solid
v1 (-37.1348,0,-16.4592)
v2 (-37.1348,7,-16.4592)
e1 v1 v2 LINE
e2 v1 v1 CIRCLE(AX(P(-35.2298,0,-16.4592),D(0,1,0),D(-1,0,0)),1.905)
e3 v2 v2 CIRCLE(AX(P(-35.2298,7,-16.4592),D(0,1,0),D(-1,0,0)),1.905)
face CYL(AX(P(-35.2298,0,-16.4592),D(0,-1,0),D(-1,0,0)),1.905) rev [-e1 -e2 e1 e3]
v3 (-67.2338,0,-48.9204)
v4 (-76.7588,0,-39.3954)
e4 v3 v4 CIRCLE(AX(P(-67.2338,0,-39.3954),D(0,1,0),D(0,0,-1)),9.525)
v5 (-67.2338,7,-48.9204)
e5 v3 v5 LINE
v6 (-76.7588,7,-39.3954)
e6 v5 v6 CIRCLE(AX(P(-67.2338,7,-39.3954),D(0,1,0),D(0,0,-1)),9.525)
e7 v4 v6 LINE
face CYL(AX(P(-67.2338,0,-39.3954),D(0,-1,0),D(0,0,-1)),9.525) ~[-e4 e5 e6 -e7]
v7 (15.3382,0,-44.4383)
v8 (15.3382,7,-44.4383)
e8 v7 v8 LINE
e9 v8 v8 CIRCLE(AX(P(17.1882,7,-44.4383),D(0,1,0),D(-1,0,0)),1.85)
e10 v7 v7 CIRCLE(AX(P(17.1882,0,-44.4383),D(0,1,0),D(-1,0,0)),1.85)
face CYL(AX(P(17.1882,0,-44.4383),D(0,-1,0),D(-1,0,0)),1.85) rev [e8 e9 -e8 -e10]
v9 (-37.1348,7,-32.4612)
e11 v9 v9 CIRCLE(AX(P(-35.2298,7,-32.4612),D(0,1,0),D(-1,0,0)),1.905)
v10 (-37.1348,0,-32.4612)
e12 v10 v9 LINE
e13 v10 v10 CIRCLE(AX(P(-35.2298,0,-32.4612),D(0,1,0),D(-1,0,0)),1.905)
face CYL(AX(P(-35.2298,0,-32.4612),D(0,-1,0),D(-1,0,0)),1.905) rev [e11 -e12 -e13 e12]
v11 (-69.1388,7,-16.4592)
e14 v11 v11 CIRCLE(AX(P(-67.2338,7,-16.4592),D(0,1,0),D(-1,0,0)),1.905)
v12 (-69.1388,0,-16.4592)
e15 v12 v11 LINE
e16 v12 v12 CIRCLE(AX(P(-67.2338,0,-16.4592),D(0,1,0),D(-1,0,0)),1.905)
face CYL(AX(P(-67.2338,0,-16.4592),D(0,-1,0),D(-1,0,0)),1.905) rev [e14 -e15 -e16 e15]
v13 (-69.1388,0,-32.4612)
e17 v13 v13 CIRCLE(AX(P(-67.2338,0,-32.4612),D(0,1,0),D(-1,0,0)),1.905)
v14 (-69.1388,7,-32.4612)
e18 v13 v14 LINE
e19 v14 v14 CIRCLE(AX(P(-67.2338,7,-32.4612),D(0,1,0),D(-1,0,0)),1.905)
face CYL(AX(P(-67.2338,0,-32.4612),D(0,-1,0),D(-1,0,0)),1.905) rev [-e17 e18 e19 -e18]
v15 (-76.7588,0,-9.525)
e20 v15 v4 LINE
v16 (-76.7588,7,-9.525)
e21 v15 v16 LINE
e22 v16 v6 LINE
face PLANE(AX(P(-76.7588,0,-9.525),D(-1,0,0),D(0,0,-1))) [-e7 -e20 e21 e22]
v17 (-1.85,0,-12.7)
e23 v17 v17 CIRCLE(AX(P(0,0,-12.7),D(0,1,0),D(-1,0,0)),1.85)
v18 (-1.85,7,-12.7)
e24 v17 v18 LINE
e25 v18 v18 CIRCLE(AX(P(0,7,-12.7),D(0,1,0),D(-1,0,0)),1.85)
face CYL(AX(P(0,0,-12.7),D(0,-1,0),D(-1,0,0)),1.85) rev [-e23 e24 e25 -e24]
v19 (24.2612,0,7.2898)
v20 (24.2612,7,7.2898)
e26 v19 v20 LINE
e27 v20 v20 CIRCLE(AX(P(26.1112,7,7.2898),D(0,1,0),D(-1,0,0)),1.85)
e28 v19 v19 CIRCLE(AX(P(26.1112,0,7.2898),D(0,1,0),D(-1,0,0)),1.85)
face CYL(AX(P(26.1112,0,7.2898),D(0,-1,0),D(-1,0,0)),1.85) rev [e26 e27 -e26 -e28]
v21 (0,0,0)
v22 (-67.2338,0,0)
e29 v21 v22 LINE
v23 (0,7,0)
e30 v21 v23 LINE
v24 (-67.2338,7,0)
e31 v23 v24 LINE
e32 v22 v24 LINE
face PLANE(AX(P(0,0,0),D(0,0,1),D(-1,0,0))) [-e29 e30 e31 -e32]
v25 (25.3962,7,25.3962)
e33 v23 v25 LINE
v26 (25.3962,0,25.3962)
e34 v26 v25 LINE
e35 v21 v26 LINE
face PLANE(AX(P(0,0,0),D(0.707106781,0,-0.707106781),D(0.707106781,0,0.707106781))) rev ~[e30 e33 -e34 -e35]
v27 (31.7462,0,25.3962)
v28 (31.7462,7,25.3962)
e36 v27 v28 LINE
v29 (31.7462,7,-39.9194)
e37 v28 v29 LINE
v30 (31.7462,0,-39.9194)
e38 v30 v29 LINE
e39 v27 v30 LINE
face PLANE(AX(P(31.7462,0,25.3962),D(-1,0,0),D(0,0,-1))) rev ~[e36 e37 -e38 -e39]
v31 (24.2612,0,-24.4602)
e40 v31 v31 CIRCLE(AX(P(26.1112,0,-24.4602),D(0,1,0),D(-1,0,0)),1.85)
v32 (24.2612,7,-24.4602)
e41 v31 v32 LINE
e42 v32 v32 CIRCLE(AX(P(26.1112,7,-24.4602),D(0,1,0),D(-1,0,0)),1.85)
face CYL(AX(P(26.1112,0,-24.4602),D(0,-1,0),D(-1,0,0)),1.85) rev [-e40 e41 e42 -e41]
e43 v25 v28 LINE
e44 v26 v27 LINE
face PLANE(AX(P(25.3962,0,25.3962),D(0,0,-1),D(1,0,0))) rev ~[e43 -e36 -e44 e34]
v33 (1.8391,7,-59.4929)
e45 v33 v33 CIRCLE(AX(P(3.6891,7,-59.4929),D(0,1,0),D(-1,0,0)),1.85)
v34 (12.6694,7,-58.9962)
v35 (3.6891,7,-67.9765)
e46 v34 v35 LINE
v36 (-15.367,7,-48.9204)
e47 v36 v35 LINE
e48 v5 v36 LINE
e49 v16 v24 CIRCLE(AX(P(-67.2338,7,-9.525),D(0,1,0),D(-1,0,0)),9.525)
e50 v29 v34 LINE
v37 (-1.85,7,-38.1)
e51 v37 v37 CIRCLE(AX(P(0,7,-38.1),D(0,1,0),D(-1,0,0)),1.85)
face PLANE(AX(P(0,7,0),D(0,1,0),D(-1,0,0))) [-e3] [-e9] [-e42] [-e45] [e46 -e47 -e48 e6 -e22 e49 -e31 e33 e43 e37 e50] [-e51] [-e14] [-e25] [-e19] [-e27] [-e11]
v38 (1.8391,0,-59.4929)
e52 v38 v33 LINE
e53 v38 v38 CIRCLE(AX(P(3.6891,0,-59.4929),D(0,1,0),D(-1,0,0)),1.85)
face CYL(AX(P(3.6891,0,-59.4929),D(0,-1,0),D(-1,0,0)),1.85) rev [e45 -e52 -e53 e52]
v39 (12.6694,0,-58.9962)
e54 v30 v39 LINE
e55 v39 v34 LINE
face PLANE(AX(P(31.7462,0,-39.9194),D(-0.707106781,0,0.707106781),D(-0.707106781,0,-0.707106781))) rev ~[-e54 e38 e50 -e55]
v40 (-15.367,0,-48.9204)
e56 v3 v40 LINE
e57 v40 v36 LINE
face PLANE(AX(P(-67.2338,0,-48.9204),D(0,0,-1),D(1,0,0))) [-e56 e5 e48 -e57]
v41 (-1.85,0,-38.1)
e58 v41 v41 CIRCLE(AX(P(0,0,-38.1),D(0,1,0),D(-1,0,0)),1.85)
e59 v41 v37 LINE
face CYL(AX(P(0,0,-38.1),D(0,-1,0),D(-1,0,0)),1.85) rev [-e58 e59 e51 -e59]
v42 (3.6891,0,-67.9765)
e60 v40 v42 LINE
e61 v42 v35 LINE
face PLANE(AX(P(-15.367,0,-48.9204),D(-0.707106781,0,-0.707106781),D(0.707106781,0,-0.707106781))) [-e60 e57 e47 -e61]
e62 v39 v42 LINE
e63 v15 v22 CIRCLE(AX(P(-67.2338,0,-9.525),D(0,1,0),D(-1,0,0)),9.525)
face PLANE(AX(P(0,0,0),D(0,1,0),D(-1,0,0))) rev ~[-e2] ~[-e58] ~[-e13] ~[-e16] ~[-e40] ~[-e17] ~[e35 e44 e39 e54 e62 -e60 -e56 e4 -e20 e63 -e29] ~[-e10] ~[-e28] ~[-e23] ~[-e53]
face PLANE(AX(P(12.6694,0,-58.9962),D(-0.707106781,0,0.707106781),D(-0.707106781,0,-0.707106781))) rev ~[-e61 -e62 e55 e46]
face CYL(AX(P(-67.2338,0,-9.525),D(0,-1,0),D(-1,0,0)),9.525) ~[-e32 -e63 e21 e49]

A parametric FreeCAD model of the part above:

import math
import FreeCAD as App
import Part
import Sketcher

V = App.Vector
Q = App.Units.Quantity

doc = App.newDocument("Part")
body = doc.addObject("PartDesign::Body", "Body")

# Sketch on XZ plane
sketch1 = doc.addObject("Sketcher::SketchObject", "Sketch")
body.addObject(sketch1)
sketch1.AttachmentSupport = (doc.XZ_Plane, [""])
sketch1.MapMode = "FlatFace"
sketch1.addGeometry([
    Part.LineSegment(V(-67.2338, 0, 0), V(0, 0, 0)),  # 0
    Part.LineSegment(V(0, 0, 0), V(25.3962, 25.3962, 0)),  # 1
    Part.LineSegment(V(25.3962, 25.3962, 0), V(31.7462, 25.3962, 0)),  # 2
    Part.LineSegment(V(31.7462, 25.3962, 0), V(31.7462, -39.9194, 0)),  # 3
    Part.LineSegment(V(31.7462, -39.9194, 0), V(3.6891, -67.9765, 0)),  # 4
    Part.LineSegment(V(3.6891, -67.9765, 0), V(-15.367, -48.9204, 0)),  # 5
    Part.LineSegment(V(-15.367, -48.9204, 0), V(-67.2338, -48.9204, 0)),  # 6
    Part.ArcOfCircle(Part.Circle(V(-67.2338, -39.3954, 0), V(0, 0, 1), 9.525), math.radians(180), math.radians(270)),  # 7
    Part.LineSegment(V(-76.7588, -39.3954, 0), V(-76.7588, -9.525, 0)),  # 8
    Part.ArcOfCircle(Part.Circle(V(-67.2338, -9.525, 0), V(0, 0, 1), 9.525), math.radians(90), math.radians(180)),  # 9
    Part.Circle(V(3.6891, -59.4929, 0), V(0, 0, 1), 1.85),  # 10
    Part.Circle(V(17.1882, -44.4383, 0), V(0, 0, 1), 1.85),  # 11
    Part.Circle(V(26.1112, -24.4602, 0), V(0, 0, 1), 1.85),  # 12
    Part.Circle(V(0, -38.1, 0), V(0, 0, 1), 1.85),  # 13
    Part.Circle(V(-35.2298, -32.4612, 0), V(0, 0, 1), 1.905),  # 14
    Part.Circle(V(-67.2338, -32.4612, 0), V(0, 0, 1), 1.905),  # 15
    Part.Circle(V(0, -12.7, 0), V(0, 0, 1), 1.85),  # 16
    Part.Circle(V(26.1112, 7.2898, 0), V(0, 0, 1), 1.85),  # 17
    Part.Circle(V(-35.2298, -16.4592, 0), V(0, 0, 1), 1.905),  # 18
    Part.Circle(V(-67.2338, -16.4592, 0), V(0, 0, 1), 1.905),  # 19
], False)
sketch1.addConstraint([
    Sketcher.Constraint("Coincident", 0, 2, 1, 1),
    Sketcher.Constraint("Coincident", 1, 2, 2, 1),
    Sketcher.Constraint("Coincident", 2, 2, 3, 1),
    Sketcher.Constraint("Coincident", 3, 2, 4, 1),
    Sketcher.Constraint("Coincident", 4, 2, 5, 1),
    Sketcher.Constraint("Coincident", 5, 2, 6, 1),
    Sketcher.Constraint("Tangent", 6, 2, 7, 2),
    Sketcher.Constraint("Tangent", 7, 1, 8, 1),
    Sketcher.Constraint("Tangent", 8, 2, 9, 2),
    Sketcher.Constraint("Tangent", 9, 1, 0, 1),
    Sketcher.Constraint("Horizontal", 0),
    Sketcher.Constraint("Horizontal", 2),
    Sketcher.Constraint("Vertical", 3),
    Sketcher.Constraint("Horizontal", 6),
    Sketcher.Constraint("Vertical", 8),
    Sketcher.Constraint("Coincident", 0, 2, -1, 1),
    Sketcher.Constraint("Equal", 7, 9),
    Sketcher.Constraint("Equal", 10, 11),
    Sketcher.Constraint("Equal", 11, 12),
    Sketcher.Constraint("Equal", 12, 13),
    Sketcher.Constraint("Equal", 14, 15),
    Sketcher.Constraint("Equal", 13, 16),
    Sketcher.Constraint("Equal", 16, 17),
    Sketcher.Constraint("Equal", 15, 18),
    Sketcher.Constraint("Equal", 18, 19),
    Sketcher.Constraint("PointOnObject", 13, 3, -2),
    Sketcher.Constraint("PointOnObject", 16, 3, -2),
    Sketcher.Constraint("Parallel", 1, 4),
    Sketcher.Constraint("Perpendicular", 4, 5),
    Sketcher.Constraint("Horizontal", 14, 3, 15, 3),
    Sketcher.Constraint("Horizontal", 18, 3, 19, 3),
    Sketcher.Constraint("Vertical", 9, 3, 15, 3),
    Sketcher.Constraint("Vertical", 12, 3, 17, 3),
    Sketcher.Constraint("Vertical", 14, 3, 18, 3),
    Sketcher.Constraint("Vertical", 15, 3, 19, 3),
    Sketcher.Constraint("Vertical", 10, 3, 4, 2),
    Sketcher.Constraint("DistanceX", 2, 1, 2, 2, Q("0.25 in")),
    Sketcher.Constraint("Diameter", 14, Q("0.15 in")),
    Sketcher.Constraint("Angle", 1, Q("45 deg")),
    Sketcher.Constraint("Radius", 7, Q("0.375 in")),
    Sketcher.Constraint("DistanceY", 13, 3, 16, 3, Q("1 in")),
    Sketcher.Constraint("DistanceY", 13, 3, -1, 1, Q("1.5 in")),
    Sketcher.Constraint("Diameter", 10, 3.7),
    Sketcher.Constraint("DistanceX", 0, 1, 0, 2, Q("2.647 in")),
    Sketcher.Constraint("DistanceX", 6, 2, 6, 1, Q("2.042 in")),
    Sketcher.Constraint("DistanceY", 8, 1, 8, 2, Q("1.176 in")),
    Sketcher.Constraint("DistanceX", 7, 3, 14, 3, Q("1.26 in")),
    Sketcher.Constraint("DistanceY", 12, 3, 17, 3, Q("1.25 in")),
    Sketcher.Constraint("DistanceY", 14, 3, 18, 3, Q("0.63 in")),
    Sketcher.Constraint("Distance", 1, Q("1.414 in")),
    Sketcher.Constraint("Distance", 5, Q("1.061 in")),
    Sketcher.Constraint("DistanceX", -1, 1, 12, 3, Q("1.028 in")),
    Sketcher.Constraint("DistanceY", 12, 3, -1, 1, Q("0.963 in")),
    Sketcher.Constraint("DistanceY", 14, 3, -1, 1, Q("1.278 in")),
    Sketcher.Constraint("DistanceY", 4, 2, 10, 3, Q("0.334 in")),
    Sketcher.Constraint("DistanceX", -1, 1, 11, 3, Q("0.6767 in")),
    Sketcher.Constraint("DistanceY", 10, 3, 11, 3, Q("0.5927 in")),
])
pad1 = doc.addObject("PartDesign::Pad", "Pad")
body.addObject(pad1)
pad1.Profile = sketch1
pad1.Length = Q("0.2755906 in")
pad1.Reversed = True

doc.recompute()
